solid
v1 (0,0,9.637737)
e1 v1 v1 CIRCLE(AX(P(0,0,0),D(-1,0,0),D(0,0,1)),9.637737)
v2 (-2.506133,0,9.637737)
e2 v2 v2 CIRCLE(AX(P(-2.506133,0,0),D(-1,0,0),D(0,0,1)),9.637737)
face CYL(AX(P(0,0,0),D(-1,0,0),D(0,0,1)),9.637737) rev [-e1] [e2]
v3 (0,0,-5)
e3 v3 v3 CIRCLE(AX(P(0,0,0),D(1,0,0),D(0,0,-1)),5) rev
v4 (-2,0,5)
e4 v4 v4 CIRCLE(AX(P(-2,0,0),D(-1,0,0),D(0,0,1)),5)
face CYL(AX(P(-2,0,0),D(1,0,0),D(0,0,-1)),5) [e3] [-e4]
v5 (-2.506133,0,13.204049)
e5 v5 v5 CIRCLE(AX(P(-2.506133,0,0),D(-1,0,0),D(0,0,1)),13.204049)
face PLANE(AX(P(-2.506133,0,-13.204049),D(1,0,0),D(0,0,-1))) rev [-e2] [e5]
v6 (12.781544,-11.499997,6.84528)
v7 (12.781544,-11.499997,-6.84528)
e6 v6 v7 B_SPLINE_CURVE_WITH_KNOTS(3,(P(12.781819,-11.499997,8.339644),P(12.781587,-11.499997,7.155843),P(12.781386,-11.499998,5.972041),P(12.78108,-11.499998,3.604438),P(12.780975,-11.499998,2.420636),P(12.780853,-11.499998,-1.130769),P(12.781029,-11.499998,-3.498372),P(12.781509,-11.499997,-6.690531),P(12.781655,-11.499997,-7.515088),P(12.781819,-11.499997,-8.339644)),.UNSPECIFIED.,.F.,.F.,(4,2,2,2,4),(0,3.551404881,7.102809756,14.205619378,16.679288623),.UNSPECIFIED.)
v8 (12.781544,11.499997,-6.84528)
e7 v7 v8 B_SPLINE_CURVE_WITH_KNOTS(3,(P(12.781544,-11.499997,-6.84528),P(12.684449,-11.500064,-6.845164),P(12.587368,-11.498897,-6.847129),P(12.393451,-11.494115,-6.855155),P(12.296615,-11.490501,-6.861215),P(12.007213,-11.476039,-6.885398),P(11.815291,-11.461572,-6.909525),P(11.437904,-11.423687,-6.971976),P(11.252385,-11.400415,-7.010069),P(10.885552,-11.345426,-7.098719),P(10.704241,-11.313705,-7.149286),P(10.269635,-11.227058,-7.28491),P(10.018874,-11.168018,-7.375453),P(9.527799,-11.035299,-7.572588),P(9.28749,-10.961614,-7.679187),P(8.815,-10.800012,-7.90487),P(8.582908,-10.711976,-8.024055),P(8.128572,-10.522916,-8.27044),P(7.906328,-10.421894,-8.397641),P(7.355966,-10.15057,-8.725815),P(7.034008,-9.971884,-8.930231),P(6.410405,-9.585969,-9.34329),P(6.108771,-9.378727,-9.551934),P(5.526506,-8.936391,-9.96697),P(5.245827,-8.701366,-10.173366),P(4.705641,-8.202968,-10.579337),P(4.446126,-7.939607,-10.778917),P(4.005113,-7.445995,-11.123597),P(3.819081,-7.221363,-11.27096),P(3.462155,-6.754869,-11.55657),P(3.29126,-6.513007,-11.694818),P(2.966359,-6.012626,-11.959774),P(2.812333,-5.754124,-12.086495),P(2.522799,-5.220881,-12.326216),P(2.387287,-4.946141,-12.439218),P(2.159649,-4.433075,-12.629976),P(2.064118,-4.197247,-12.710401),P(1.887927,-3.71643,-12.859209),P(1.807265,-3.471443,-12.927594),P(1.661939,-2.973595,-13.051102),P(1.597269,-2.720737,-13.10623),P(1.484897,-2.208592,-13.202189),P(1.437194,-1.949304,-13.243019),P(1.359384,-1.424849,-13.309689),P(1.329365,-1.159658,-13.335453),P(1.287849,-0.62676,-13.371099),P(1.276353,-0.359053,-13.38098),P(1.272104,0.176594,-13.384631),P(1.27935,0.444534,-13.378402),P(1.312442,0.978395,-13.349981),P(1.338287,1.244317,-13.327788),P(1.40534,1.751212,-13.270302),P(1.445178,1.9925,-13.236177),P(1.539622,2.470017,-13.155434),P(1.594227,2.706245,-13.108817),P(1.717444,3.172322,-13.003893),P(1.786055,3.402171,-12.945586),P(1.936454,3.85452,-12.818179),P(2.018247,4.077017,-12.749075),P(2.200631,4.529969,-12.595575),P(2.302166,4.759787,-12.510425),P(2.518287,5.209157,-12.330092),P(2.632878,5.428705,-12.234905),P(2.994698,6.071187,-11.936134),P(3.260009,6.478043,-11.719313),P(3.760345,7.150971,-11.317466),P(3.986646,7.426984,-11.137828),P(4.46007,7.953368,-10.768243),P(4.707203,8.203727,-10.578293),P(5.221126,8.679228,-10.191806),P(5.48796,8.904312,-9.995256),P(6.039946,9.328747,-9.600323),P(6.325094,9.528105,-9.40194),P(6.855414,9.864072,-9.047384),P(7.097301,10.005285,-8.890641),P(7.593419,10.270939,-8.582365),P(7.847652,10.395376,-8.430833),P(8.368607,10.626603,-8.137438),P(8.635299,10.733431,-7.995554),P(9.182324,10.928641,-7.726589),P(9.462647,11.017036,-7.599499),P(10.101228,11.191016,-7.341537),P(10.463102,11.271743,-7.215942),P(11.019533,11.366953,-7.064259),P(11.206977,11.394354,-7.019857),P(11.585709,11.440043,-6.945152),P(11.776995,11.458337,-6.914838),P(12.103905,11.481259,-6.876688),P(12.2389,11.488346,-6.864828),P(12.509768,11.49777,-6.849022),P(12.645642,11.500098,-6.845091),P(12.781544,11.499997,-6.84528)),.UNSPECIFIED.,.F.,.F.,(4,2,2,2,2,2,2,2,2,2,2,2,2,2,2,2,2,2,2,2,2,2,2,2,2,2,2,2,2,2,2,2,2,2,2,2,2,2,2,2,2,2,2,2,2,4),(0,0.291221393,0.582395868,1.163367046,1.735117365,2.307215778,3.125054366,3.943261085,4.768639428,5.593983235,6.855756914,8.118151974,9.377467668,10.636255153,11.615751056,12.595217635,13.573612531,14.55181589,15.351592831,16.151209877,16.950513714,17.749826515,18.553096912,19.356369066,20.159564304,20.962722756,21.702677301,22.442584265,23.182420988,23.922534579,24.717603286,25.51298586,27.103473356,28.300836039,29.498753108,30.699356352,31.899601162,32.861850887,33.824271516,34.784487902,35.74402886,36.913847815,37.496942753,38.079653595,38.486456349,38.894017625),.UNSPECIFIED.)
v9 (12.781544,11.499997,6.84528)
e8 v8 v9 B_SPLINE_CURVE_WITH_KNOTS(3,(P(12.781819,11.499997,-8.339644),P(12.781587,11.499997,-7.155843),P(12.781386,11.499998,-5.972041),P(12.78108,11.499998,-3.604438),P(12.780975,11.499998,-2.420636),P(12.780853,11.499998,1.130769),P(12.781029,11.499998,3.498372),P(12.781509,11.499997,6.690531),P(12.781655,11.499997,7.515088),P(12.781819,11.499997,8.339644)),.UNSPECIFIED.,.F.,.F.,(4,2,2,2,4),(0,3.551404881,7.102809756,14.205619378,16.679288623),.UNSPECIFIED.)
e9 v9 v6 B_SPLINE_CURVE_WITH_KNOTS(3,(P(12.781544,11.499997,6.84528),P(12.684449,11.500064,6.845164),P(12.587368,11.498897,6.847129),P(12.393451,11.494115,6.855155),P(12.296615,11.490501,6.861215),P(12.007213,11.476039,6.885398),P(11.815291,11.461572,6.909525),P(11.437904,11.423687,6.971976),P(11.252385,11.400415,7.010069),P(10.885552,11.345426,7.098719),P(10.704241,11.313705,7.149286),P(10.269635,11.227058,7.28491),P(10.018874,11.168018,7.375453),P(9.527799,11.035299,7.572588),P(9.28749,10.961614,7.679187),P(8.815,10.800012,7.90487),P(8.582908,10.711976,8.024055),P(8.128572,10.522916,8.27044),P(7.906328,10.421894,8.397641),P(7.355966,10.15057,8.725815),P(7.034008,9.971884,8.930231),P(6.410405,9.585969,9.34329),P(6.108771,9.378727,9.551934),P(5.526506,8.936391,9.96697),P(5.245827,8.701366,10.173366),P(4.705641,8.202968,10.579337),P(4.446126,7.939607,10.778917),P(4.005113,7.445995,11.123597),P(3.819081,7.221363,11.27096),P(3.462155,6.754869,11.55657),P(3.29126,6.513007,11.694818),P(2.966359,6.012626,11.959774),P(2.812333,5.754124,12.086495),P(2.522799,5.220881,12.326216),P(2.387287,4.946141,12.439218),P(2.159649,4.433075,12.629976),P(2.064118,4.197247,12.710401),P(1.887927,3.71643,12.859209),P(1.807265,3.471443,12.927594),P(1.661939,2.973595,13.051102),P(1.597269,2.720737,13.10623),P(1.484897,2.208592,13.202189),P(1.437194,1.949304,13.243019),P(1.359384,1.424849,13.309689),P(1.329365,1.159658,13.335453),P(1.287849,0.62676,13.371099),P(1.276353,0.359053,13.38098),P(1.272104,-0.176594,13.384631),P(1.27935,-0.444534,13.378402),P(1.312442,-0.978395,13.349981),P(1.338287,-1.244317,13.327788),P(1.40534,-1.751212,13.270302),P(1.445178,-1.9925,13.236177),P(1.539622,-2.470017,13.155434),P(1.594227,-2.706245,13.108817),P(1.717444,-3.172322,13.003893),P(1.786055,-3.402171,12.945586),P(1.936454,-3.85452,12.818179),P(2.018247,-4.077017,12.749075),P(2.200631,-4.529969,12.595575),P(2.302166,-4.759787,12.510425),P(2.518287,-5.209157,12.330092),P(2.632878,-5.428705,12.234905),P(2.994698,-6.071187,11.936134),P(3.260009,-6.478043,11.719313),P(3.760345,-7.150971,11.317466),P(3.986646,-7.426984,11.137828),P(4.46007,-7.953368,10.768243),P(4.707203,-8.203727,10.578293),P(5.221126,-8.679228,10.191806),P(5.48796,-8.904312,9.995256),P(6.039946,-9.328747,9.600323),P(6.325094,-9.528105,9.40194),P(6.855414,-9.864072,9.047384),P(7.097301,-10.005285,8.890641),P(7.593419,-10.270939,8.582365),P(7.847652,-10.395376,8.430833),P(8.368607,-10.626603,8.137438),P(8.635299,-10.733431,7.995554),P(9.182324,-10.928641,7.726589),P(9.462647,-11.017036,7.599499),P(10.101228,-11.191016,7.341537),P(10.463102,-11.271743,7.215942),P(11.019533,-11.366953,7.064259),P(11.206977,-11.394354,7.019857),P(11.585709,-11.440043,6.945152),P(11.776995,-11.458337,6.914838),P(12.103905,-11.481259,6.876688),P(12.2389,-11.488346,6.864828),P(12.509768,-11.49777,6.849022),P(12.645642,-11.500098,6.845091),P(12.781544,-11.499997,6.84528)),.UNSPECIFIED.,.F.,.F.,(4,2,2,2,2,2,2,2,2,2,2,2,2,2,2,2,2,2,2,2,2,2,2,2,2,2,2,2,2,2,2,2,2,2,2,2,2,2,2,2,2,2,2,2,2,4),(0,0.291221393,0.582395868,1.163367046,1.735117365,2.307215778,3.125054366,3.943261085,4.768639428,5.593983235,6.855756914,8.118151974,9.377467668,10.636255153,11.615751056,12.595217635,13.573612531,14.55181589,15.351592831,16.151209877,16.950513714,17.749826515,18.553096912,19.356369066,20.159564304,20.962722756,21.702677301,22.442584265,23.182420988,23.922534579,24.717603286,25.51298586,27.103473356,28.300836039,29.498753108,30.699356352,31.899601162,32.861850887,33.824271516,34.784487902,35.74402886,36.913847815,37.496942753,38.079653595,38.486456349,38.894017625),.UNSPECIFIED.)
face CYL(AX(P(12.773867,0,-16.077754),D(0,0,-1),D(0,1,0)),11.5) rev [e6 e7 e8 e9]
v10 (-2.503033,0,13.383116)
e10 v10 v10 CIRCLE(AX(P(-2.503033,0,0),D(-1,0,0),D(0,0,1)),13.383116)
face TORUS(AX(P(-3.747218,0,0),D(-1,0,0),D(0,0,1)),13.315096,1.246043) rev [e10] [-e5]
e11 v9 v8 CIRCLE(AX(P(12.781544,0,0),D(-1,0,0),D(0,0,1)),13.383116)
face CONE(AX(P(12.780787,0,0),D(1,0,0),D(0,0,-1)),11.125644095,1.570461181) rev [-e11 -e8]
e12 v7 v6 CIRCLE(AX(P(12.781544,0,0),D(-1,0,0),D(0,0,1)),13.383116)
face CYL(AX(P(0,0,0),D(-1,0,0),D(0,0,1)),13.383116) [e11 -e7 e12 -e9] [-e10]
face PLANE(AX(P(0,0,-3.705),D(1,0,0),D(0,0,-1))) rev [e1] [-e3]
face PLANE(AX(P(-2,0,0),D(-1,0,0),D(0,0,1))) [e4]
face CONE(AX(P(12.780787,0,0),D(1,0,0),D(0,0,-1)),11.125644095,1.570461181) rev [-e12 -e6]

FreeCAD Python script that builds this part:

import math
import FreeCAD as App
import Part
import Sketcher
Q = App.Units.Quantity

doc = App.newDocument("Part")
params = doc.addObject("Spreadsheet::Sheet", "Params")
for row, (alias, value) in enumerate([
    ("revolution_angle", "360 deg"),
    ("sketch2_width", "11.5 mm"),
    ("groove_angle", "360 deg"),
    ("sketch3_diameter", "10 mm"),
    ("pad1_length", "2 mm"),
], start=1):
    params.set(f"A{row}", alias)
    params.set(f"B{row}", "=" + value)
    params.setAlias(f"B{row}", alias)

body = doc.addObject("PartDesign::Body", "Body")

sketch1 = body.newObject("Sketcher::SketchObject", "Sketch")
sketch1.AttachmentSupport = (doc.getObject("XZ_Plane"), [""])
sketch1.MapMode = "FlatFace"
sketch1.addGeometry(Part.LineSegment(App.Vector(12.78, -13.38, 0), App.Vector(-2.5, -13.38, 0)), False)
sketch1.addGeometry(Part.ArcOfCircle(Part.Circle(App.Vector(-3.75, -13.32, 0), App.Vector(0, 0, 1), 1.25), math.radians(-3.13), math.radians(5.11)), False)
sketch1.addGeometry(Part.LineSegment(App.Vector(-2.51, -13.2, 0), App.Vector(-2.51, -9.64, 0)), False)
sketch1.addGeometry(Part.LineSegment(App.Vector(-2.51, -9.64, 0), App.Vector(0, -9.64, 0)), False)
sketch1.addGeometry(Part.LineSegment(App.Vector(0, -9.64, 0), App.Vector(0, 0, 0)), False)
sketch1.addGeometry(Part.LineSegment(App.Vector(0, 0, 0), App.Vector(4.79, 0, 0)), False)
sketch1.addGeometry(Part.LineSegment(App.Vector(4.79, 0, 0), App.Vector(4.81, -3.71, 0)), False)
sketch1.addGeometry(Part.ArcOfCircle(Part.Circle(App.Vector(4.79, -3.1, 0), App.Vector(0, 0, 1), 0.61), math.radians(-88), math.radians(-49)), False)
sketch1.addGeometry(Part.ArcOfCircle(Part.Circle(App.Vector(15.85, 0, 0), App.Vector(0, 0, 1), 11.25), math.radians(-162), math.radians(-108)), False)
sketch1.addGeometry(Part.ArcOfCircle(Part.Circle(App.Vector(10.66, -12.45, 0), App.Vector(0, 0, 1), 2.5), math.radians(32.05), math.radians(43.81)), False)
sketch1.addGeometry(Part.LineSegment(App.Vector(12.78, -11.13, 0), App.Vector(12.78, -13.38, 0)), False)
sketch1.addConstraint(Sketcher.Constraint("Coincident", 0, 2, 1, 1))
sketch1.addConstraint(Sketcher.Constraint("Coincident", 1, 2, 2, 1))
sketch1.addConstraint(Sketcher.Constraint("Coincident", 2, 2, 3, 1))
sketch1.addConstraint(Sketcher.Constraint("Coincident", 3, 2, 4, 1))
sketch1.addConstraint(Sketcher.Constraint("Coincident", 4, 2, 5, 1))
sketch1.addConstraint(Sketcher.Constraint("Coincident", 5, 2, 6, 1))
sketch1.addConstraint(Sketcher.Constraint("Coincident", 6, 2, 7, 1))
sketch1.addConstraint(Sketcher.Constraint("Coincident", 7, 2, 8, 1))
sketch1.addConstraint(Sketcher.Constraint("Coincident", 8, 2, 9, 2))
sketch1.addConstraint(Sketcher.Constraint("Coincident", 9, 1, 10, 1))
sketch1.addConstraint(Sketcher.Constraint("Coincident", 10, 2, 0, 1))
sketch1.addConstraint(Sketcher.Constraint("Horizontal", 0))
sketch1.addConstraint(Sketcher.Constraint("Vertical", 2))
sketch1.addConstraint(Sketcher.Constraint("Horizontal", 3))
sketch1.addConstraint(Sketcher.Constraint("Vertical", 4))
sketch1.addConstraint(Sketcher.Constraint("Horizontal", 5))
sketch1.addConstraint(Sketcher.Constraint("Coincident", 4, 2, -1, 1))
sketch1.addConstraint(Sketcher.Constraint("Vertical", 7, 3, 5, 2))
sketch1.addConstraint(Sketcher.Constraint("DistanceY", 6, 2, -1, 1, Q("3.705 mm")))
sketch1.addConstraint(Sketcher.Constraint("Radius", 1, Q("1.246042 mm")))
sketch1.addConstraint(Sketcher.Constraint("Radius", 7, Q("0.609355 mm")))
sketch1.addConstraint(Sketcher.Constraint("Radius", 8, Q("11.245296 mm")))
sketch1.addConstraint(Sketcher.Constraint("Radius", 9, Q("2.501757 mm")))
sketch1.addConstraint(Sketcher.Constraint("DistanceX", 8, 2, 10, 2, Q("0.316 mm")))
sketch1.addConstraint(Sketcher.Constraint("DistanceX", 1, 2, 0, 2, Q("0.0031 mm")))
sketch1.addConstraint(Sketcher.Constraint("DistanceX", 7, 3, 7, 2, Q("0.396102 mm")))
sketch1.addConstraint(Sketcher.Constraint("DistanceX", 9, 3, 8, 2, Q("1.805299 mm")))
sketch1.addConstraint(Sketcher.Constraint("DistanceY", 8, 2, 8, 3, Q("10.723199 mm")))
sketch1.addConstraint(Sketcher.Constraint("DistanceY", 9, 1, 7, 3, Q("8.029701 mm")))
sketch1.addConstraint(Sketcher.Constraint("DistanceX", 0, 2, 0, 1, Q("15.284577 mm")))
sketch1.addConstraint(Sketcher.Constraint("DistanceX", 3, 1, 3, 2, Q("2.506133 mm")))
sketch1.addConstraint(Sketcher.Constraint("DistanceX", 5, 1, 5, 2, Q("4.789577 mm")))
sketch1.addConstraint(Sketcher.Constraint("DistanceY", 2, 1, 2, 2, Q("3.566312 mm")))
sketch1.addConstraint(Sketcher.Constraint("DistanceY", 4, 1, 4, 2, Q("9.637737 mm")))
sketch1.addConstraint(Sketcher.Constraint("DistanceY", 9, 3, -1, 1, Q("12.453081 mm")))
sketch1.addConstraint(Sketcher.Constraint("DistanceY", 0, 2, 1, 3, Q("0.06802 mm")))
revolution = body.newObject("PartDesign::Revolution", "Revolution")
revolution.Profile = sketch1
revolution.ReferenceAxis = (sketch1, ["H_Axis"])
revolution.setExpression("Angle", "Params.revolution_angle")

sketch2 = body.newObject("Sketcher::SketchObject", "Sketch001")
sketch2.AttachmentSupport = (doc.getObject("YZ_Plane"), [""])
sketch2.MapMode = "FlatFace"
sketch2.AttachmentOffset = App.Placement(App.Vector(0, 0, 12.773867), App.Rotation())
sketch2.addGeometry(Part.LineSegment(App.Vector(0, -16, 0), App.Vector(0, 16, 0)), False)
sketch2.addGeometry(Part.LineSegment(App.Vector(0, 16, 0), App.Vector(12, 16, 0)), False)
sketch2.addGeometry(Part.LineSegment(App.Vector(12, 16, 0), App.Vector(12, -16, 0)), False)
sketch2.addGeometry(Part.LineSegment(App.Vector(12, -16, 0), App.Vector(0, -16, 0)), False)
sketch2.addConstraint(Sketcher.Constraint("Coincident", 0, 2, 1, 1))
sketch2.addConstraint(Sketcher.Constraint("Coincident", 1, 2, 2, 1))
sketch2.addConstraint(Sketcher.Constraint("Coincident", 2, 2, 3, 1))
sketch2.addConstraint(Sketcher.Constraint("Coincident", 3, 2, 0, 1))
sketch2.addConstraint(Sketcher.Constraint("Vertical", 0))
sketch2.addConstraint(Sketcher.Constraint("Horizontal", 1))
sketch2.addConstraint(Sketcher.Constraint("Vertical", 2))
sketch2.addConstraint(Sketcher.Constraint("Horizontal", 3))
sketch2.addConstraint(Sketcher.Constraint("PointOnObject", 0, 2, -2))
sketch2.addConstraint(Sketcher.Constraint("DistanceX", 1, 1, 1, 2, Q("11.5 mm")))
sketch2.addConstraint(Sketcher.Constraint("DistanceY", 0, 1, 0, 2, Q("31.596186 mm")))
sketch2.addConstraint(Sketcher.Constraint("DistanceY", -1, 1, 0, 2, Q("15.518432 mm")))
sketch2.setExpression("Constraints[9]", "Params.sketch2_width")
groove = body.newObject("PartDesign::Groove", "Groove")
groove.Profile = sketch2
groove.ReferenceAxis = (sketch2, ["V_Axis"])
groove.setExpression("Angle", "Params.groove_angle")

sketch3 = body.newObject("Sketcher::SketchObject", "Sketch002")
sketch3.AttachmentSupport = (doc.getObject("YZ_Plane"), [""])
sketch3.MapMode = "FlatFace"
sketch3.addGeometry(Part.Circle(App.Vector(0, 0, 0), App.Vector(0, 0, 1), 5), False)
sketch3.addConstraint(Sketcher.Constraint("Coincident", 0, 3, -1, 1))
sketch3.addConstraint(Sketcher.Constraint("Diameter", 0, Q("10 mm")))
sketch3.setExpression("Constraints[1]", "Params.sketch3_diameter")
pad1 = body.newObject("PartDesign::Pad", "Pad")
pad1.Profile = sketch3
pad1.setExpression("Length", "Params.pad1_length")
pad1.Reversed = True

doc.recompute()
